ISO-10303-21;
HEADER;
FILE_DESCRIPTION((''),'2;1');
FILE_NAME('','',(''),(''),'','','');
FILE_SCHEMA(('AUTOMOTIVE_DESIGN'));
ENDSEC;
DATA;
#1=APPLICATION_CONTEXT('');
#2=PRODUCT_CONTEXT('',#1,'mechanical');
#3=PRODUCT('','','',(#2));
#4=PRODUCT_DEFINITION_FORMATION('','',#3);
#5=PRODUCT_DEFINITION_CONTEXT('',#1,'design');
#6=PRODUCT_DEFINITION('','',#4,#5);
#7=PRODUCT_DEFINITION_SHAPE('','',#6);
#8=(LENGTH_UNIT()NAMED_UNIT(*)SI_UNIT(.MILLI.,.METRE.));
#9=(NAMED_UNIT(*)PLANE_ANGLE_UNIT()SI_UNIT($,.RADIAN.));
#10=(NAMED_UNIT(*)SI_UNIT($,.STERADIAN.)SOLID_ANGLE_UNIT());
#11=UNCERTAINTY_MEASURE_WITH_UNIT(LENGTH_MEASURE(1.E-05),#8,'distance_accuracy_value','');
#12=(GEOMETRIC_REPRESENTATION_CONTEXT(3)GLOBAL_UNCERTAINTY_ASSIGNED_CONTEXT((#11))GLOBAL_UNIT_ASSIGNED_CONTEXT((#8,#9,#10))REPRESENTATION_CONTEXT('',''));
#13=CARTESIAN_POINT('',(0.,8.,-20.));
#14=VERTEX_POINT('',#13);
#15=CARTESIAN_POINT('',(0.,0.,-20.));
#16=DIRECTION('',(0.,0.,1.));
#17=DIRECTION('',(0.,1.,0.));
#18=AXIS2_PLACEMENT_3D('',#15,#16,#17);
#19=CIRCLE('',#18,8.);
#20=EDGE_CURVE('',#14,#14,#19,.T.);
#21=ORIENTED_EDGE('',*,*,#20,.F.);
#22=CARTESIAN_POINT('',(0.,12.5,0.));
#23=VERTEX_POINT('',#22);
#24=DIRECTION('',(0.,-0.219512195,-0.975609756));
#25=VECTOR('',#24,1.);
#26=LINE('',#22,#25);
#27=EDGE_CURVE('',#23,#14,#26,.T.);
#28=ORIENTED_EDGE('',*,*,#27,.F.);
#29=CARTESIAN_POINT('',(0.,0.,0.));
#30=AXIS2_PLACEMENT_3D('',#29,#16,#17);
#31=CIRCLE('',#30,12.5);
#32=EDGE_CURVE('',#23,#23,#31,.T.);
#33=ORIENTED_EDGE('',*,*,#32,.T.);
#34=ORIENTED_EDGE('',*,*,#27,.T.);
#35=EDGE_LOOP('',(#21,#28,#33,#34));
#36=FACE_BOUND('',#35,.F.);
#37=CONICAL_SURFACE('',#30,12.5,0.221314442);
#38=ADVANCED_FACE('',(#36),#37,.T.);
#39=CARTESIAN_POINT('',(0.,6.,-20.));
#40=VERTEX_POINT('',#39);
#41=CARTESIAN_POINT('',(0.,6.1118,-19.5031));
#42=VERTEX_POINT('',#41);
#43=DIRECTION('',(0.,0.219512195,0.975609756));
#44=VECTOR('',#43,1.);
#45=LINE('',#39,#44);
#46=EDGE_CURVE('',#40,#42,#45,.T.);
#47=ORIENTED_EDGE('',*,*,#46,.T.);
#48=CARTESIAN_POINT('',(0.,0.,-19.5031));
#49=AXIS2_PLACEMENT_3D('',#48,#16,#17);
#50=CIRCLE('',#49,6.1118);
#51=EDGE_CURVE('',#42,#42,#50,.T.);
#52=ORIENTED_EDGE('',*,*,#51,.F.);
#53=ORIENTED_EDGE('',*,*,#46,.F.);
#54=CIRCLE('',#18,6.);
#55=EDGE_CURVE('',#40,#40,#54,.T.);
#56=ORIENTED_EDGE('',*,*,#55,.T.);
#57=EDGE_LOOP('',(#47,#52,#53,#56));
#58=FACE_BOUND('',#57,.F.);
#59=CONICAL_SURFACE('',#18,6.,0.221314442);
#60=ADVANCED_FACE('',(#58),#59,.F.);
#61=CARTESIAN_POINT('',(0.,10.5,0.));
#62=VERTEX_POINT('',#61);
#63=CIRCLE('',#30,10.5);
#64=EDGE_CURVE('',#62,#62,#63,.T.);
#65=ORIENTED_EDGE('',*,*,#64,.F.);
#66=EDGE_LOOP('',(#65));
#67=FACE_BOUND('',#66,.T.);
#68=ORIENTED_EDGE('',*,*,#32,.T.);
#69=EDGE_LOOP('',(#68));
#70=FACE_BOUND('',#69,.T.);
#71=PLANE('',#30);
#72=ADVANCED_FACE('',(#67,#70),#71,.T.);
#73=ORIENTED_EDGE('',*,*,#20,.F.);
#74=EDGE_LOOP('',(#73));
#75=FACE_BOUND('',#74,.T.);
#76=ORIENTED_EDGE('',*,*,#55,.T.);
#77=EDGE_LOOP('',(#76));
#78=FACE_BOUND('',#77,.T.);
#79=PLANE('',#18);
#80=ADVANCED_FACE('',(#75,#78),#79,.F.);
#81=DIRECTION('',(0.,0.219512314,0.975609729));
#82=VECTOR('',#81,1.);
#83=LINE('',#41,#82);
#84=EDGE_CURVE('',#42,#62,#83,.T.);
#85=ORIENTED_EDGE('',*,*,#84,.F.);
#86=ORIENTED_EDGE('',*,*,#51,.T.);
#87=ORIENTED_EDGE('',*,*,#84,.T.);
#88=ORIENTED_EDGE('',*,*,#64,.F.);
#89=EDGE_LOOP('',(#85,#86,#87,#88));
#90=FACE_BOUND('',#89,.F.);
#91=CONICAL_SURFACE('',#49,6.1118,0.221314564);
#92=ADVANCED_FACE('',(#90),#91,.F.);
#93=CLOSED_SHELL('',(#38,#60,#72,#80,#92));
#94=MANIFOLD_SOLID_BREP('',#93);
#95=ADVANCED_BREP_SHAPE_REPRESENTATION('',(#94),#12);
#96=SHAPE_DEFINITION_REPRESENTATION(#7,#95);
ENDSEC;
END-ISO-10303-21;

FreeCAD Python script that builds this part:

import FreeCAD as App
import Part
import Sketcher

V = App.Vector

doc = App.newDocument("Part")
body = doc.addObject("PartDesign::Body", "Body")

# Sketch on YZ plane
sketch1 = body.newObject("Sketcher::SketchObject", "Sketch")
sketch1.AttachmentSupport = (doc.getObject("YZ_Plane"), [""])
sketch1.MapMode = "FlatFace"
sketch1.addGeometry([
    Part.LineSegment(V(8, -20, 0), V(12.5, 0, 0)),  # 0
    Part.LineSegment(V(12.5, 0, 0), V(10.5, 0, 0)),  # 1
    Part.LineSegment(V(10.5, 0, 0), V(6.1, -19.5, 0)),  # 2
    Part.LineSegment(V(6.1, -19.5, 0), V(6, -20, 0)),  # 3
    Part.LineSegment(V(6, -20, 0), V(8, -20, 0)),  # 4
], False)
sketch1.addConstraint([
    Sketcher.Constraint("Coincident", 0, 2, 1, 1),
    Sketcher.Constraint("Coincident", 1, 2, 2, 1),
    Sketcher.Constraint("Coincident", 2, 2, 3, 1),
    Sketcher.Constraint("Coincident", 3, 2, 4, 1),
    Sketcher.Constraint("Coincident", 4, 2, 0, 1),
    Sketcher.Constraint("Horizontal", 1),
    Sketcher.Constraint("Horizontal", 4),
    Sketcher.Constraint("PointOnObject", 0, 2, -1),
    Sketcher.Constraint("Parallel", 0, 2),
    Sketcher.Constraint("Parallel", 2, 3),
    Sketcher.Constraint("DistanceX", 1, 2, 1, 1, 2.0),
    Sketcher.Constraint("DistanceY", 3, 2, -1, 1, 20.0),
    Sketcher.Constraint("DistanceX", -1, 1, 3, 2, 6.0),
    Sketcher.Constraint("Distance", 0, 20.5),
    Sketcher.Constraint("DistanceY", 2, 2, -1, 1, 19.503),
])
revolution = body.newObject("PartDesign::Revolution", "Revolution")
revolution.Profile = sketch1
revolution.ReferenceAxis = (sketch1, ["V_Axis"])
revolution.Angle = 360

doc.recompute()
